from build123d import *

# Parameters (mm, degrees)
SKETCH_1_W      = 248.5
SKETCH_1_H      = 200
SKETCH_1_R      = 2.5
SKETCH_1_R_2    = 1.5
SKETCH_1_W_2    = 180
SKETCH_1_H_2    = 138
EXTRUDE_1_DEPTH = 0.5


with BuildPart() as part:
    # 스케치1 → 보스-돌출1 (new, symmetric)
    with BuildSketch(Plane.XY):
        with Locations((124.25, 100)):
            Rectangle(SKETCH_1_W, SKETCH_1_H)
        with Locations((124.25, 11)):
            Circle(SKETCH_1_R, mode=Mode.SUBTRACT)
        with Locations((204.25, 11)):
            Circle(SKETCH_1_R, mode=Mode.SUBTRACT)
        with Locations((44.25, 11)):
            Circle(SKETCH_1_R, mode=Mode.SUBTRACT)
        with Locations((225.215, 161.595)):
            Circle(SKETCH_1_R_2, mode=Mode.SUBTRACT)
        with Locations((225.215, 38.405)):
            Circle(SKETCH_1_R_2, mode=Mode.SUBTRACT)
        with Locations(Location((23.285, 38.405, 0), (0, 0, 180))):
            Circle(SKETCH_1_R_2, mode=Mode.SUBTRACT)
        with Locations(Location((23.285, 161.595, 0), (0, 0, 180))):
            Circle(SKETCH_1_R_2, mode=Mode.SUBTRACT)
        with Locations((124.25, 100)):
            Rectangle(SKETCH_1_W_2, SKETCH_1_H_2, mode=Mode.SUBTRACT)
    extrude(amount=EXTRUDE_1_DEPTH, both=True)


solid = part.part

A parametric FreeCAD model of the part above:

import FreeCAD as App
import Part
import Sketcher
Q = App.Units.Quantity

doc = App.newDocument("Part")
body = doc.addObject("PartDesign::Body", "Body")

# Sketch on XY plane
sketch1 = doc.addObject("Sketcher::SketchObject", "Sketch")
body.addObject(sketch1)
sketch1.AttachmentSupport = (doc.XY_Plane, [""])
sketch1.MapMode = "FlatFace"
sketch1.addGeometry(Part.LineSegment(App.Vector(0, 200, 0), App.Vector(0, 0, 0)), False)
sketch1.addGeometry(Part.LineSegment(App.Vector(0, 0, 0), App.Vector(248.5, 0, 0)), False)
sketch1.addGeometry(Part.LineSegment(App.Vector(248.5, 0, 0), App.Vector(248.5, 200, 0)), False)
sketch1.addGeometry(Part.LineSegment(App.Vector(248.5, 200, 0), App.Vector(0, 200, 0)), False)
sketch1.addGeometry(Part.Circle(App.Vector(44.25, 11, 0), App.Vector(0, 0, 1), 2.5), False)
sketch1.addGeometry(Part.Circle(App.Vector(23.285, 38.405, 0), App.Vector(0, 0, 1), 1.5), False)
sketch1.addGeometry(Part.Circle(App.Vector(124.25, 11, 0), App.Vector(0, 0, 1), 2.5), False)
sketch1.addGeometry(Part.Circle(App.Vector(204.25, 11, 0), App.Vector(0, 0, 1), 2.5), False)
sketch1.addGeometry(Part.Circle(App.Vector(225.215, 38.405, 0), App.Vector(0, 0, 1), 1.5), False)
sketch1.addGeometry(Part.LineSegment(App.Vector(214.25, 31, 0), App.Vector(34.25, 31, 0)), False)
sketch1.addGeometry(Part.LineSegment(App.Vector(34.25, 31, 0), App.Vector(34.25, 169, 0)), False)
sketch1.addGeometry(Part.LineSegment(App.Vector(34.25, 169, 0), App.Vector(214.25, 169, 0)), False)
sketch1.addGeometry(Part.LineSegment(App.Vector(214.25, 169, 0), App.Vector(214.25, 31, 0)), False)
sketch1.addGeometry(Part.Circle(App.Vector(23.285, 161.595, 0), App.Vector(0, 0, 1), 1.5), False)
sketch1.addGeometry(Part.Circle(App.Vector(225.215, 161.595, 0), App.Vector(0, 0, 1), 1.5), False)
sketch1.addConstraint(Sketcher.Constraint("Coincident", 0, 2, 1, 1))
sketch1.addConstraint(Sketcher.Constraint("Coincident", 1, 2, 2, 1))
sketch1.addConstraint(Sketcher.Constraint("Coincident", 2, 2, 3, 1))
sketch1.addConstraint(Sketcher.Constraint("Coincident", 3, 2, 0, 1))
sketch1.addConstraint(Sketcher.Constraint("Coincident", 9, 2, 10, 1))
sketch1.addConstraint(Sketcher.Constraint("Coincident", 10, 2, 11, 1))
sketch1.addConstraint(Sketcher.Constraint("Coincident", 11, 2, 12, 1))
sketch1.addConstraint(Sketcher.Constraint("Coincident", 12, 2, 9, 1))
sketch1.addConstraint(Sketcher.Constraint("Vertical", 0))
sketch1.addConstraint(Sketcher.Constraint("Horizontal", 1))
sketch1.addConstraint(Sketcher.Constraint("Vertical", 2))
sketch1.addConstraint(Sketcher.Constraint("Horizontal", 3))
sketch1.addConstraint(Sketcher.Constraint("Horizontal", 9))
sketch1.addConstraint(Sketcher.Constraint("Vertical", 10))
sketch1.addConstraint(Sketcher.Constraint("Horizontal", 11))
sketch1.addConstraint(Sketcher.Constraint("Vertical", 12))
sketch1.addConstraint(Sketcher.Constraint("Coincident", 0, 2, -1, 1))
sketch1.addConstraint(Sketcher.Constraint("Equal", 4, 6))
sketch1.addConstraint(Sketcher.Constraint("Equal", 6, 7))
sketch1.addConstraint(Sketcher.Constraint("Equal", 5, 8))
sketch1.addConstraint(Sketcher.Constraint("Equal", 8, 13))
sketch1.addConstraint(Sketcher.Constraint("Equal", 13, 14))
sketch1.addConstraint(Sketcher.Constraint("Horizontal", 4, 3, 6, 3))
sketch1.addConstraint(Sketcher.Constraint("Horizontal", 6, 3, 7, 3))
sketch1.addConstraint(Sketcher.Constraint("Horizontal", 5, 3, 8, 3))
sketch1.addConstraint(Sketcher.Constraint("Horizontal", 13, 3, 14, 3))
sketch1.addConstraint(Sketcher.Constraint("Vertical", 5, 3, 13, 3))
sketch1.addConstraint(Sketcher.Constraint("Vertical", 8, 3, 14, 3))
sketch1.addConstraint(Sketcher.Constraint("Diameter", 4, Q("5 mm")))
sketch1.addConstraint(Sketcher.Constraint("Diameter", 5, Q("3 mm")))
sketch1.addConstraint(Sketcher.Constraint("DistanceX", 9, 2, 9, 1, Q("180 mm")))
sketch1.addConstraint(Sketcher.Constraint("DistanceY", 0, 2, 0, 1, Q("200 mm")))
sketch1.addConstraint(Sketcher.Constraint("DistanceY", 10, 1, 10, 2, Q("138 mm")))
sketch1.addConstraint(Sketcher.Constraint("DistanceX", 1, 1, 1, 2, Q("248.5 mm")))
sketch1.addConstraint(Sketcher.Constraint("DistanceY", -1, 1, 4, 3, Q("11 mm")))
sketch1.addConstraint(Sketcher.Constraint("DistanceY", -1, 1, 9, 2, Q("31 mm")))
sketch1.addConstraint(Sketcher.Constraint("DistanceX", 4, 3, 6, 3, Q("80 mm")))
sketch1.addConstraint(Sketcher.Constraint("DistanceX", 6, 3, 7, 3, Q("80 mm")))
sketch1.addConstraint(Sketcher.Constraint("DistanceX", 9, 2, 4, 3, Q("10 mm")))
sketch1.addConstraint(Sketcher.Constraint("DistanceX", -1, 1, 4, 3, Q("44.25 mm")))
sketch1.addConstraint(Sketcher.Constraint("DistanceX", 5, 3, 8, 3, Q("201.93 mm")))
sketch1.addConstraint(Sketcher.Constraint("DistanceY", 5, 3, 13, 3, Q("123.19 mm")))
sketch1.addConstraint(Sketcher.Constraint("DistanceX", -1, 1, 5, 3, Q("23.285 mm")))
sketch1.addConstraint(Sketcher.Constraint("DistanceY", -1, 1, 5, 3, Q("38.405 mm")))
pad1 = doc.addObject("PartDesign::Pad", "Pad")
body.addObject(pad1)
pad1.Profile = sketch1
pad1.Length = 1
pad1.Midplane = True

doc.recompute()
